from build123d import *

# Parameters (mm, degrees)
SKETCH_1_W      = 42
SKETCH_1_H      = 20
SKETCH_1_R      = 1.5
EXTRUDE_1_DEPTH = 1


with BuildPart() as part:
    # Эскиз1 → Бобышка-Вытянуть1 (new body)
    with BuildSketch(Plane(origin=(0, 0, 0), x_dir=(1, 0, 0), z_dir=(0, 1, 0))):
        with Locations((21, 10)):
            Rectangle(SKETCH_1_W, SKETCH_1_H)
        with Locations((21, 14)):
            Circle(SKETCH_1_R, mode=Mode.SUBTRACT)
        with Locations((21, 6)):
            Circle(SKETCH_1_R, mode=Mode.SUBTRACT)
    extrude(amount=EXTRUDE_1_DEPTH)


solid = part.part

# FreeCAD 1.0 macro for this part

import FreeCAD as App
import Part
import Sketcher
from FreeCAD import Vector


def add_polygon(sketch, points):
    """Adds a closed chain of lines whose ends are joined by coincident constraints."""
    first, n = sketch.GeometryCount, len(points)
    for a, b in zip(points, points[1:] + points[:1]):
        sketch.addGeometry(Part.LineSegment(App.Vector(*a, 0), App.Vector(*b, 0)), False)
    for i in range(n):
        sketch.addConstraint(Sketcher.Constraint("Coincident", first + i, 2, first + (i + 1) % n, 1))

doc = App.newDocument("Part")
body = doc.addObject("PartDesign::Body", "Body")

sketch1 = body.newObject("Sketcher::SketchObject", "Sketch")
sketch1.AttachmentSupport = (doc.getObject("XZ_Plane"), [""])
sketch1.MapMode = "FlatFace"
add_polygon(sketch1, [(0, -20), (0, 0), (42, 0), (42, -20)])
sketch1.addGeometry(Part.Circle(Vector(21, -6, 0), Vector(0, 0, 1), 1.5), False)
sketch1.addGeometry(Part.Circle(Vector(21, -14, 0), Vector(0, 0, 1), 1.5), False)
sketch1.addConstraint([
    Sketcher.Constraint("Vertical", 0),
    Sketcher.Constraint("Horizontal", 1),
    Sketcher.Constraint("Vertical", 2),
    Sketcher.Constraint("Horizontal", 3),
    Sketcher.Constraint("Coincident", 0, 2, -1, 1),
    Sketcher.Constraint("Equal", 4, 5),
    Sketcher.Constraint("Vertical", 4, 3, 5, 3),
    Sketcher.Constraint("Diameter", 4, 3.0),
    Sketcher.Constraint("DistanceX", 1, 1, 1, 2, 42.0),
    Sketcher.Constraint("DistanceY", 0, 1, 0, 2, 20.0),
    Sketcher.Constraint("DistanceX", -1, 1, 4, 3, 21.0),
    Sketcher.Constraint("DistanceY", 4, 3, -1, 1, 6.0),
    Sketcher.Constraint("DistanceY", 5, 3, -1, 1, 14.0),
])
pad1 = body.newObject("PartDesign::Pad", "Pad")
pad1.Profile = sketch1
pad1.Length = 1
pad1.Reversed = True

doc.recompute()
